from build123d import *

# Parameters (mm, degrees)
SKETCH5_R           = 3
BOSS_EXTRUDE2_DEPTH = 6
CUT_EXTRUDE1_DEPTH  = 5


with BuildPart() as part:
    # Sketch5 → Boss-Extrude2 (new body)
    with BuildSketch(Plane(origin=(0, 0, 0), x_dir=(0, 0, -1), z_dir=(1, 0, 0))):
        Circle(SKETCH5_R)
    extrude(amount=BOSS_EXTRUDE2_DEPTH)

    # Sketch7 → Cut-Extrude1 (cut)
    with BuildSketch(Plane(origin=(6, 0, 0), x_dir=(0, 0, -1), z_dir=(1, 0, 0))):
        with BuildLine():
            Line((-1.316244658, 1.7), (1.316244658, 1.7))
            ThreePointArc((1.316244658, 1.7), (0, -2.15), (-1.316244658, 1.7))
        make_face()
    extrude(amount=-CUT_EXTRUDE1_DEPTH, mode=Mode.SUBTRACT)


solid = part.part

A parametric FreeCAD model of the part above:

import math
import FreeCAD as App
import Part
import Sketcher

V = App.Vector
Q = App.Units.Quantity

doc = App.newDocument("Part")
body = doc.addObject("PartDesign::Body", "Body")

# Sketch on YZ plane
sketch1 = body.newObject("Sketcher::SketchObject", "Sketch")
sketch1.AttachmentSupport = (doc.getObject("YZ_Plane"), [""])
sketch1.MapMode = "FlatFace"
sketch1.addGeometry(Part.Circle(V(0, 0, 0), V(0, 0, 1), 3), False)
sketch1.addConstraint([
    Sketcher.Constraint("Coincident", 0, 3, -1, 1),
    Sketcher.Constraint("Diameter", 0, Q("6 mm")),
])
pad1 = body.newObject("PartDesign::Pad", "Pad")
pad1.Profile = sketch1
pad1.Length = 6

# Sketch on YZ plane
sketch2 = body.newObject("Sketcher::SketchObject", "Sketch001")
sketch2.AttachmentSupport = (doc.getObject("YZ_Plane"), [""])
sketch2.MapMode = "FlatFace"
sketch2.AttachmentOffset = App.Placement(V(0, 0, 6), App.Rotation())
sketch2.addGeometry([
    Part.LineSegment(V(1.7, -1.3, 0), V(1.7, 1.3, 0)),
    Part.ArcOfCircle(Part.Circle(V(0, 0, 0), V(0, 0, 1), 2.1), math.radians(38), math.radians(322)),
], False)
sketch2.addConstraint([
    Sketcher.Constraint("Coincident", 0, 1, 1, 2),
    Sketcher.Constraint("Coincident", 1, 1, 0, 2),
    Sketcher.Constraint("Vertical", 0),
    Sketcher.Constraint("Coincident", 1, 3, -1, 1),
    Sketcher.Constraint("Radius", 1, Q("2.15 mm")),
    Sketcher.Constraint("DistanceX", -1, 1, 0, 1, Q("1.7 mm")),
])
pocket1 = body.newObject("PartDesign::Pocket", "Pocket")
pocket1.Profile = sketch2
pocket1.Length = 5

doc.recompute()
